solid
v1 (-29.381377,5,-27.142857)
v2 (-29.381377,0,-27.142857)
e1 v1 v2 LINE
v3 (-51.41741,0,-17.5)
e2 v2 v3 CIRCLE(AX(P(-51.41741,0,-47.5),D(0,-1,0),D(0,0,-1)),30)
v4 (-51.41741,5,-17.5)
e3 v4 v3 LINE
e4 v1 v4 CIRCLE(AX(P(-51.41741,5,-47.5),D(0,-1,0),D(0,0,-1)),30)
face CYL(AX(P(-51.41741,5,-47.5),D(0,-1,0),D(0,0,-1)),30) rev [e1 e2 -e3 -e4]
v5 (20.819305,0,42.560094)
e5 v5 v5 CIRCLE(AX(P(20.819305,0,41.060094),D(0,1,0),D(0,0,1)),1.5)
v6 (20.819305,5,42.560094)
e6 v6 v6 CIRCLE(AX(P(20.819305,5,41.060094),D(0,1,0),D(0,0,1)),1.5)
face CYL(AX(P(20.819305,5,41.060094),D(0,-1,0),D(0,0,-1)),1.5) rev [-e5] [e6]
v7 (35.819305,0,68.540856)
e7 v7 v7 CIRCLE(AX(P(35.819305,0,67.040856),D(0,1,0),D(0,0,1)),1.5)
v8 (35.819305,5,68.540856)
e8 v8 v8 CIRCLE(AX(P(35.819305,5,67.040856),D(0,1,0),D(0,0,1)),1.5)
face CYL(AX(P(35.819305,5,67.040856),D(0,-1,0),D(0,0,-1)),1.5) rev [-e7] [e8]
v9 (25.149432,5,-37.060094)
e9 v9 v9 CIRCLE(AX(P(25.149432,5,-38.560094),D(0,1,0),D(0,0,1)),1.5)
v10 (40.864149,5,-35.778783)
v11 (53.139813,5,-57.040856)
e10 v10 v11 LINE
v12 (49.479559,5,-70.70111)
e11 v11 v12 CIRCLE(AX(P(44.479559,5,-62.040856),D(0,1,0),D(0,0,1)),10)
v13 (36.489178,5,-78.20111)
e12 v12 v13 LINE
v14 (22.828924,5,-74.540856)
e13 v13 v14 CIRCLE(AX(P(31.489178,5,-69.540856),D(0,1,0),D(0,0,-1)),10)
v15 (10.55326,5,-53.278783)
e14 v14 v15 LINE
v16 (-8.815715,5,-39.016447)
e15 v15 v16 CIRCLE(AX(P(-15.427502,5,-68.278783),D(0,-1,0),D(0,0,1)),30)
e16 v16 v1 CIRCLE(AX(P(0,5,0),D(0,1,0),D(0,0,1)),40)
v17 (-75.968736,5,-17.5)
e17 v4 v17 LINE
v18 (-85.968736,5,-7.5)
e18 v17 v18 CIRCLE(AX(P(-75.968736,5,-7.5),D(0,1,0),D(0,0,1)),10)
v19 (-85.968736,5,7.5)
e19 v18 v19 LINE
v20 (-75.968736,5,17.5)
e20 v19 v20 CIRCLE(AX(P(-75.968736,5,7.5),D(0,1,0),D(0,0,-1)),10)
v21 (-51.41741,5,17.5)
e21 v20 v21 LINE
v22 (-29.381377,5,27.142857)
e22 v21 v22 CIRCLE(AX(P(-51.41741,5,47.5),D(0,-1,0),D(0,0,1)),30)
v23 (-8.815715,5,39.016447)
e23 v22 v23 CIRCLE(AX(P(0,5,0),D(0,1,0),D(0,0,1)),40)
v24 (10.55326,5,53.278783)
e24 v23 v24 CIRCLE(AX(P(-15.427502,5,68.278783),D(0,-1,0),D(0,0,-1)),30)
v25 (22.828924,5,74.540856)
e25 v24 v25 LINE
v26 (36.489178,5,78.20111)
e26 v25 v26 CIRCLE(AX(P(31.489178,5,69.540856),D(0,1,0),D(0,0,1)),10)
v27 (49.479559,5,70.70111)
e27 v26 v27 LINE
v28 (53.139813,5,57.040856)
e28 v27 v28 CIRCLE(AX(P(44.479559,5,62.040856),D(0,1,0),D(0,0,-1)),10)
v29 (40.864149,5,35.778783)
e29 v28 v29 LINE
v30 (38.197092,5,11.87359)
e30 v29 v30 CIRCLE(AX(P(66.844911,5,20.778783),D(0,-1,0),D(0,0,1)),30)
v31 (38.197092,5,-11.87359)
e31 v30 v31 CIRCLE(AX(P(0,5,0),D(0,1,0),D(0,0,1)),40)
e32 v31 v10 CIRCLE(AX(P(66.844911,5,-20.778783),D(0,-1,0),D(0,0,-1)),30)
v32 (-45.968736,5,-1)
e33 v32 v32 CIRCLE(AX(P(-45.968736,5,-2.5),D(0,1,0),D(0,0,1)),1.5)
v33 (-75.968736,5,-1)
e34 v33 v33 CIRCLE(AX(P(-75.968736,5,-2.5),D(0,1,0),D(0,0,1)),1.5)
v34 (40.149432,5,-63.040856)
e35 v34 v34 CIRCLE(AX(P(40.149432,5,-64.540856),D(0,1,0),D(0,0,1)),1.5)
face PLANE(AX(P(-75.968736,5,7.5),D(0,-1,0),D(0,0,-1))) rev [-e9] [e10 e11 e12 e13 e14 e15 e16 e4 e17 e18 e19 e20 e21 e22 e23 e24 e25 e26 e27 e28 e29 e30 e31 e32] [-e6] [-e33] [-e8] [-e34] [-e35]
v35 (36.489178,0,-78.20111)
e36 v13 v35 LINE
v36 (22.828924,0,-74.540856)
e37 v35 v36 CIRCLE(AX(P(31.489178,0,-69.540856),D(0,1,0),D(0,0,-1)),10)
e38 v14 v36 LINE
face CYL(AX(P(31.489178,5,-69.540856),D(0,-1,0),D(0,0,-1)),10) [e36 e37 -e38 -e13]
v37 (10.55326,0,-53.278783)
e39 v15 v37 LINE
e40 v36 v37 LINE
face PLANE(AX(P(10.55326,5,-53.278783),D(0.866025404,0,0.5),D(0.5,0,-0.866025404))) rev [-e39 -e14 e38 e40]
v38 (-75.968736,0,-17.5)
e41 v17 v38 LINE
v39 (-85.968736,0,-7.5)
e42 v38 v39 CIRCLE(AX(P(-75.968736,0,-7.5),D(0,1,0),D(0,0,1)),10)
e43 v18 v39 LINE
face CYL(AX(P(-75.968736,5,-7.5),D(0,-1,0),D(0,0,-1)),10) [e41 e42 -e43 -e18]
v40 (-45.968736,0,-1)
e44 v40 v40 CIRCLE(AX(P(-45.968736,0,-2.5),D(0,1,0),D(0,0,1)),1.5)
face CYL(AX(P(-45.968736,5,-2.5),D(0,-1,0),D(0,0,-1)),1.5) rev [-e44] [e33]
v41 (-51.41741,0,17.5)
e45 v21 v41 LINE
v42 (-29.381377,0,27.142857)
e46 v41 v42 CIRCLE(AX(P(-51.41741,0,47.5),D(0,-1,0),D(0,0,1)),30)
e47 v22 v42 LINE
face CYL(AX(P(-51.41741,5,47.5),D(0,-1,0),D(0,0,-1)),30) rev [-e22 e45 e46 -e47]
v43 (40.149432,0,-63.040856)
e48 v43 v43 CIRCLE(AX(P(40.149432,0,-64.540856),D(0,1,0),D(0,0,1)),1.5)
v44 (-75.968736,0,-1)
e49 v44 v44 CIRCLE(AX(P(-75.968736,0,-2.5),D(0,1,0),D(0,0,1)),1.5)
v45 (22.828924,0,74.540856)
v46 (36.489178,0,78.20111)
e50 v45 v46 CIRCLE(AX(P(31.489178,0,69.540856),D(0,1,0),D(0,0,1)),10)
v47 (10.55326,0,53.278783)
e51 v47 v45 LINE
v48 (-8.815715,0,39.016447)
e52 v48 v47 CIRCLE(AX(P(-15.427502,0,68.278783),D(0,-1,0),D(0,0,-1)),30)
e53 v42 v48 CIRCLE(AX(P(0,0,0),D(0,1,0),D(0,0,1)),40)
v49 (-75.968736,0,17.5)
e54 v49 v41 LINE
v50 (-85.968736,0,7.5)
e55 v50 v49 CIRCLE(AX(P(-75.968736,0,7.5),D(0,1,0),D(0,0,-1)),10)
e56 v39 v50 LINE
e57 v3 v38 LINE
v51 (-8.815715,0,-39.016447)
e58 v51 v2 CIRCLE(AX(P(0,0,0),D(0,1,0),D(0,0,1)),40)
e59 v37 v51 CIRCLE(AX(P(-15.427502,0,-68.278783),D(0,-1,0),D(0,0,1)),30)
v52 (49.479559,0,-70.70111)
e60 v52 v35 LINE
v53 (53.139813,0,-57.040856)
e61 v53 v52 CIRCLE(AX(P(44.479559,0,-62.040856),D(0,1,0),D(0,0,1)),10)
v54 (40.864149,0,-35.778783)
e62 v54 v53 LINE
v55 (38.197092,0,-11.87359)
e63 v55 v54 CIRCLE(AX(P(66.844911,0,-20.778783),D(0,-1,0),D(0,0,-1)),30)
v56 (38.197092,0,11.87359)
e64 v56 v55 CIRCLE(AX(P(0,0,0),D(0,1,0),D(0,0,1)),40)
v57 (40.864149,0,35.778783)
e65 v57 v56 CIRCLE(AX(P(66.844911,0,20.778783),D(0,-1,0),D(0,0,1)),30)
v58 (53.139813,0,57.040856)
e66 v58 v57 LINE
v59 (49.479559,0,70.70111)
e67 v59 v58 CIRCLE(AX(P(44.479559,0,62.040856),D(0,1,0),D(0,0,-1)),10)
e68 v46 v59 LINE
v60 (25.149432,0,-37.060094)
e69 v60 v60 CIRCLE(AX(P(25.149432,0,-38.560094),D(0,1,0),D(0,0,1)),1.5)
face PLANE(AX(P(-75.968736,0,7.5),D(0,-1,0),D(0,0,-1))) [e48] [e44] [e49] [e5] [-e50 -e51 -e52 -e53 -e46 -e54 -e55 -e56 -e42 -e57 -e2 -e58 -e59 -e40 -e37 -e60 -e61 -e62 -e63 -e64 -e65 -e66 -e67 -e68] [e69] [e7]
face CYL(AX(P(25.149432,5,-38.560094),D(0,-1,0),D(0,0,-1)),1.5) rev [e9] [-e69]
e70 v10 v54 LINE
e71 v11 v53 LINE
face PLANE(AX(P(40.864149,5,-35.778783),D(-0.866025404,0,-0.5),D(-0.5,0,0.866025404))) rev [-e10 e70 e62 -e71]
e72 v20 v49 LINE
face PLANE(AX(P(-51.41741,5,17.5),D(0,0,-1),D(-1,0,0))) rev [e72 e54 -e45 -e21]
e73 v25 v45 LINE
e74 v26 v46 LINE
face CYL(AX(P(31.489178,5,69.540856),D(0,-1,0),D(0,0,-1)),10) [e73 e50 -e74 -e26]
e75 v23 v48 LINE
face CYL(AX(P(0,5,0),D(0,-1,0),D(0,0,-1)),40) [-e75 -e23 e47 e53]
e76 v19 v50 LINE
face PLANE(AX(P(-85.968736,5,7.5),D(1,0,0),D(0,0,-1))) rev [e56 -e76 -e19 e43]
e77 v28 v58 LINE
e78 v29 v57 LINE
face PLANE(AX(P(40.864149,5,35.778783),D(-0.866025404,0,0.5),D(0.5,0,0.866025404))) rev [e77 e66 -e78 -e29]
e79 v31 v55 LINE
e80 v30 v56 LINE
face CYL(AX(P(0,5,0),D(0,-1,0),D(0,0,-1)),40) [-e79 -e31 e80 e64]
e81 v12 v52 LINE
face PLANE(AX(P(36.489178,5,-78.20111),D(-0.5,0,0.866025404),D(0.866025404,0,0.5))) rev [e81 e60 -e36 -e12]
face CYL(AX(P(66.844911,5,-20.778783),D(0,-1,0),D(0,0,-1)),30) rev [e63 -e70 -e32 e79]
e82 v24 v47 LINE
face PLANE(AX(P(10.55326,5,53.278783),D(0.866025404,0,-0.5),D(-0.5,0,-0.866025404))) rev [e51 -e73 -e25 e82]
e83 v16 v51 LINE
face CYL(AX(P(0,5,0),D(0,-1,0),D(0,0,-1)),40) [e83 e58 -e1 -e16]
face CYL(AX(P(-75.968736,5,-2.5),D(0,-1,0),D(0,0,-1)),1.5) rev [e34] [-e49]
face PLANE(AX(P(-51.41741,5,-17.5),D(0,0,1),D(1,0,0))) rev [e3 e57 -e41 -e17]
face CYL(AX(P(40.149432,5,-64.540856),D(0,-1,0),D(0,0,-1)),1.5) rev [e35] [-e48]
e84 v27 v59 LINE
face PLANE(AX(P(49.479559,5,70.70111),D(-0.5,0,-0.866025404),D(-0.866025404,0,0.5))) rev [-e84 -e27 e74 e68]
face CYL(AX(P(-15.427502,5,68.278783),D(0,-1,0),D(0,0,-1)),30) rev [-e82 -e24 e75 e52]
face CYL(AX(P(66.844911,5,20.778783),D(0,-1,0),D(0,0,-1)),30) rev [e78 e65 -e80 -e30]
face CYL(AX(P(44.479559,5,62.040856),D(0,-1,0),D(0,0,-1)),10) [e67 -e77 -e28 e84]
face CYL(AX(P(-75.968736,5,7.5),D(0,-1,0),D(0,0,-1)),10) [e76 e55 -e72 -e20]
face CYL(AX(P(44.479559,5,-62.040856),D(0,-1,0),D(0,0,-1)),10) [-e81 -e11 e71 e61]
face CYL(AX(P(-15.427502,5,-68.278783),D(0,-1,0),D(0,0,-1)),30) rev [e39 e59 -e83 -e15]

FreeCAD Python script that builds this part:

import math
import FreeCAD as App
import Part
import Sketcher
Q = App.Units.Quantity

doc = App.newDocument("Part")
body = doc.addObject("PartDesign::Body", "Body")

sketch1 = body.newObject("Sketcher::SketchObject", "Sketch")
sketch1.AttachmentSupport = (doc.getObject("XZ_Plane"), [""])
sketch1.MapMode = "FlatFace"
sketch1.addGeometry([
    Part.LineSegment(App.Vector(40.9, -35.8, 0), App.Vector(53.1, -57, 0)),
    Part.ArcOfCircle(Part.Circle(App.Vector(44.5, -62, 0), App.Vector(0, 0, 1), 10), math.radians(-60), math.radians(30)),
    Part.LineSegment(App.Vector(49.5, -70.7, 0), App.Vector(36.5, -78.2, 0)),
    Part.ArcOfCircle(Part.Circle(App.Vector(31.5, -69.5, 0), App.Vector(0, 0, 1), 10), math.radians(-150), math.radians(-60)),
    Part.LineSegment(App.Vector(22.8, -74.5, 0), App.Vector(10.6, -53.3, 0)),
    Part.ArcOfCircle(Part.Circle(App.Vector(-15.4, -68.3, 0), App.Vector(0, 0, 1), 30), math.radians(30), math.radians(77)),
    Part.ArcOfCircle(Part.Circle(App.Vector(0, 0, 0), App.Vector(0, 0, 1), 40), math.radians(-137), math.radians(-103)),
    Part.ArcOfCircle(Part.Circle(App.Vector(-51.4, -47.5, 0), App.Vector(0, 0, 1), 30), math.radians(43), math.radians(90)),
    Part.LineSegment(App.Vector(-51.4, -17.5, 0), App.Vector(-76, -17.5, 0)),
    Part.ArcOfCircle(Part.Circle(App.Vector(-76, -7.5, 0), App.Vector(0, 0, 1), 10), math.radians(180), math.radians(270)),
    Part.LineSegment(App.Vector(-86, -7.5, 0), App.Vector(-86, 7.5, 0)),
    Part.ArcOfCircle(Part.Circle(App.Vector(-76, 7.5, 0), App.Vector(0, 0, 1), 10), math.radians(90), math.radians(180)),
    Part.LineSegment(App.Vector(-76, 17.5, 0), App.Vector(-51.4, 17.5, 0)),
    Part.ArcOfCircle(Part.Circle(App.Vector(-51.4, 47.5, 0), App.Vector(0, 0, 1), 30), math.radians(-90), math.radians(-43)),
    Part.ArcOfCircle(Part.Circle(App.Vector(0, 0, 0), App.Vector(0, 0, 1), 40), math.radians(103), math.radians(137)),
    Part.ArcOfCircle(Part.Circle(App.Vector(-15.4, 68.3, 0), App.Vector(0, 0, 1), 30), math.radians(-77), math.radians(-30)),
    Part.LineSegment(App.Vector(10.6, 53.3, 0), App.Vector(22.8, 74.5, 0)),
    Part.ArcOfCircle(Part.Circle(App.Vector(31.5, 69.5, 0), App.Vector(0, 0, 1), 10), math.radians(60), math.radians(150)),
    Part.LineSegment(App.Vector(36.5, 78.2, 0), App.Vector(49.5, 70.7, 0)),
    Part.ArcOfCircle(Part.Circle(App.Vector(44.5, 62, 0), App.Vector(0, 0, 1), 10), math.radians(-30), math.radians(60)),
    Part.LineSegment(App.Vector(53.1, 57, 0), App.Vector(40.9, 35.8, 0)),
    Part.ArcOfCircle(Part.Circle(App.Vector(66.8, 20.8, 0), App.Vector(0, 0, 1), 30), math.radians(150), math.radians(197)),
    Part.ArcOfCircle(Part.Circle(App.Vector(0, 0, 0), App.Vector(0, 0, 1), 40), math.radians(-17), math.radians(17)),
    Part.ArcOfCircle(Part.Circle(App.Vector(66.8, -20.8, 0), App.Vector(0, 0, 1), 30), math.radians(163), math.radians(210)),
    Part.Circle(App.Vector(35.8, 67, 0), App.Vector(0, 0, 1), 1.5),
    Part.Circle(App.Vector(20.8, 41.1, 0), App.Vector(0, 0, 1), 1.5),
    Part.Circle(App.Vector(-76, -2.5, 0), App.Vector(0, 0, 1), 1.5),
    Part.Circle(App.Vector(-46, -2.5, 0), App.Vector(0, 0, 1), 1.5),
    Part.Circle(App.Vector(25.1, -38.6, 0), App.Vector(0, 0, 1), 1.5),
    Part.Circle(App.Vector(40.1, -64.5, 0), App.Vector(0, 0, 1), 1.5),
], False)
sketch1.addConstraint([
    Sketcher.Constraint("Tangent", 0, 2, 1, 2),
    Sketcher.Constraint("Tangent", 1, 1, 2, 1),
    Sketcher.Constraint("Tangent", 2, 2, 3, 2),
    Sketcher.Constraint("Tangent", 3, 1, 4, 1),
    Sketcher.Constraint("Tangent", 4, 2, 5, 1),
    Sketcher.Constraint("Tangent", 5, 2, 6, 2),
    Sketcher.Constraint("Tangent", 6, 1, 7, 1),
    Sketcher.Constraint("Tangent", 7, 2, 8, 1),
    Sketcher.Constraint("Tangent", 8, 2, 9, 2),
    Sketcher.Constraint("Tangent", 9, 1, 10, 1),
    Sketcher.Constraint("Tangent", 10, 2, 11, 2),
    Sketcher.Constraint("Tangent", 11, 1, 12, 1),
    Sketcher.Constraint("Tangent", 12, 2, 13, 1),
    Sketcher.Constraint("Tangent", 13, 2, 14, 2),
    Sketcher.Constraint("Tangent", 14, 1, 15, 1),
    Sketcher.Constraint("Tangent", 15, 2, 16, 1),
    Sketcher.Constraint("Tangent", 16, 2, 17, 2),
    Sketcher.Constraint("Tangent", 17, 1, 18, 1),
    Sketcher.Constraint("Tangent", 18, 2, 19, 2),
    Sketcher.Constraint("Tangent", 19, 1, 20, 1),
    Sketcher.Constraint("Tangent", 20, 2, 21, 1),
    Sketcher.Constraint("Tangent", 21, 2, 22, 2),
    Sketcher.Constraint("Tangent", 22, 1, 23, 1),
    Sketcher.Constraint("Tangent", 23, 2, 0, 1),
    Sketcher.Constraint("Horizontal", 8),
    Sketcher.Constraint("Vertical", 10),
    Sketcher.Constraint("Horizontal", 12),
    Sketcher.Constraint("Coincident", 6, 3, -1, 1),
    Sketcher.Constraint("Coincident", 14, 3, -1, 1),
    Sketcher.Constraint("Coincident", 22, 3, -1, 1),
    Sketcher.Constraint("Equal", 1, 3),
    Sketcher.Constraint("Equal", 5, 7),
    Sketcher.Constraint("Equal", 3, 9),
    Sketcher.Constraint("Equal", 9, 11),
    Sketcher.Constraint("Equal", 7, 13),
    Sketcher.Constraint("Equal", 6, 14),
    Sketcher.Constraint("Equal", 13, 15),
    Sketcher.Constraint("Equal", 11, 17),
    Sketcher.Constraint("Equal", 17, 19),
    Sketcher.Constraint("Equal", 15, 21),
    Sketcher.Constraint("Equal", 14, 22),
    Sketcher.Constraint("Equal", 21, 23),
    Sketcher.Constraint("Equal", 24, 25),
    Sketcher.Constraint("Equal", 25, 26),
    Sketcher.Constraint("Equal", 26, 27),
    Sketcher.Constraint("Equal", 27, 28),
    Sketcher.Constraint("Equal", 28, 29),
    Sketcher.Constraint("Symmetric", 3, 3, 17, 3, -1),
    Sketcher.Constraint("Symmetric", 1, 3, 19, 3, -1),
    Sketcher.Constraint("Perpendicular", 0, 2),
    Sketcher.Constraint("Perpendicular", 2, 4),
    Sketcher.Constraint("Perpendicular", 16, 18),
    Sketcher.Constraint("Perpendicular", 18, 20),
    Sketcher.Constraint("Horizontal", 26, 3, 27, 3),
    Sketcher.Constraint("Vertical", 7, 3, 13, 3),
    Sketcher.Constraint("Vertical", 11, 3, 26, 3),
    Sketcher.Constraint("Equal", 0, 4),
    Sketcher.Constraint("Diameter", 24, 3.0),
    Sketcher.Constraint("Radius", 1, 10.0),
    Sketcher.Constraint("Radius", 5, 30.0),
    Sketcher.Constraint("Radius", 6, 40.0),
    Sketcher.Constraint("DistanceY", 10, 1, 10, 2, 15.0),
    Sketcher.Constraint("Angle", 0, Q("-60 deg")),
    Sketcher.Constraint("Distance", 2, 15.0),
    Sketcher.Constraint("DistanceY", 19, 3, 24, 3, 5.0),
    Sketcher.Constraint("DistanceX", 25, 3, 24, 3, 15.0),
    Sketcher.Constraint("DistanceY", 9, 3, 26, 3, 5.0),
    Sketcher.Constraint("DistanceX", 26, 3, 27, 3, 30.0),
    Sketcher.Constraint("DistanceY", 3, 3, 29, 3, 5.0),
    Sketcher.Constraint("DistanceX", 28, 3, 29, 3, 15.0),
    Sketcher.Constraint("DistanceX", 0, 2, 23, 3, 13.705099),
    Sketcher.Constraint("DistanceX", 8, 2, 8, 1, 24.551327),
    Sketcher.Constraint("DistanceX", -1, 1, 28, 3, 25.149432),
    Sketcher.Constraint("DistanceY", 25, 3, 15, 3, 27.218689),
    Sketcher.Constraint("DistanceY", 28, 3, 23, 3, 17.781311),
    Sketcher.Constraint("DistanceX", 14, 1, 25, 3, 29.63502),
])
pad1 = body.newObject("PartDesign::Pad", "Pad")
pad1.Profile = sketch1
pad1.Length = 5
pad1.Reversed = True

doc.recompute()
